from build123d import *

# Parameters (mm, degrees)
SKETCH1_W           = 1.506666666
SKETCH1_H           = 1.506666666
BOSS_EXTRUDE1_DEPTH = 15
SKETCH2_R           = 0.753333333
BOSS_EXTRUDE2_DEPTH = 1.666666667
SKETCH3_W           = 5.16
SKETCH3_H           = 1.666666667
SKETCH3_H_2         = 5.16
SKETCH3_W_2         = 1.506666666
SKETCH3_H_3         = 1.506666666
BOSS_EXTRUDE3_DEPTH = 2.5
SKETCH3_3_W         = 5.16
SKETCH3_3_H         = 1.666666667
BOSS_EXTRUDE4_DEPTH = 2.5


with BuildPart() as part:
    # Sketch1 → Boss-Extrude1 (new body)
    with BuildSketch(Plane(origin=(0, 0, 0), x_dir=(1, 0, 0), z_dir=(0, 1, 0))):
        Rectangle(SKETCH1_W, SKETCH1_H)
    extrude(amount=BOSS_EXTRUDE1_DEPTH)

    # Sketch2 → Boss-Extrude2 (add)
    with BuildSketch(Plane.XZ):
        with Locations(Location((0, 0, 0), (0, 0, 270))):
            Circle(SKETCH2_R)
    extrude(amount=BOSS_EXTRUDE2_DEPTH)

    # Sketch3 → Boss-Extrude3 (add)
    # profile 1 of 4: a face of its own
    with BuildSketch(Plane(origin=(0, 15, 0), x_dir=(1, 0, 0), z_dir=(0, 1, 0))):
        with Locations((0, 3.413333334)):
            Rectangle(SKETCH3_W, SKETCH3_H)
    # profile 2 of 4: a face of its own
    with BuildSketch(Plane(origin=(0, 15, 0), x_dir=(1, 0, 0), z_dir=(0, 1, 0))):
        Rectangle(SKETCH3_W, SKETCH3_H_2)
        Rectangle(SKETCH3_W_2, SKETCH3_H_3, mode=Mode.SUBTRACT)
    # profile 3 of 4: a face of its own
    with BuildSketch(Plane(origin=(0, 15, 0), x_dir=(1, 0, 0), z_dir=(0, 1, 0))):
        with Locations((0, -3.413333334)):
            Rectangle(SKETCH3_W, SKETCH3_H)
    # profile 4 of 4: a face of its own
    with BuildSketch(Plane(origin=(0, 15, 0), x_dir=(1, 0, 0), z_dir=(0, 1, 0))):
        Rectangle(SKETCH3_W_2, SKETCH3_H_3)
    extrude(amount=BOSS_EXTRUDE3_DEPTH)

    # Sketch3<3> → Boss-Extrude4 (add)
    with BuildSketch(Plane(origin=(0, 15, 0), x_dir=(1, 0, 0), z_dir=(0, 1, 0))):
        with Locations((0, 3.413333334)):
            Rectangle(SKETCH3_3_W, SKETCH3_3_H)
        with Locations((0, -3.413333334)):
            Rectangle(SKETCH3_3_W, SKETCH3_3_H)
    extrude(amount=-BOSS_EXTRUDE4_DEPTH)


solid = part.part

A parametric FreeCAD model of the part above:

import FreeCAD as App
import Part
import Sketcher

V = App.Vector
Q = App.Units.Quantity


def add_polygon(sketch, points):
    """Adds a closed chain of lines whose ends are joined by coincident constraints."""
    first, n = sketch.GeometryCount, len(points)
    for a, b in zip(points, points[1:] + points[:1]):
        sketch.addGeometry(Part.LineSegment(App.Vector(*a, 0), App.Vector(*b, 0)), False)
    for i in range(n):
        sketch.addConstraint(Sketcher.Constraint("Coincident", first + i, 2, first + (i + 1) % n, 1))

doc = App.newDocument("Part")
body = doc.addObject("PartDesign::Body", "Body")

# Sketch on XZ plane
sketch1 = body.newObject("Sketcher::SketchObject", "Sketch")
sketch1.AttachmentSupport = (doc.getObject("XZ_Plane"), [""])
sketch1.MapMode = "FlatFace"
add_polygon(sketch1, [(-0.753333, -0.753333), (-0.753333, 0.753333), (0.753333, 0.753333), (0.753333, -0.753333)])  # lines 0-3
sketch1.addConstraint([
    Sketcher.Constraint("Vertical", 0),
    Sketcher.Constraint("Horizontal", 1),
    Sketcher.Constraint("Vertical", 2),
    Sketcher.Constraint("Horizontal", 3),
    Sketcher.Constraint("Symmetric", 0, 2, 2, 2, -1, 1),
    Sketcher.Constraint("Equal", 3, 0),
    Sketcher.Constraint("DistanceX", 1, 1, 1, 2, Q("1.506667 mm")),
])
pad1 = body.newObject("PartDesign::Pad", "Pad")
pad1.Profile = sketch1
pad1.Length = 15
pad1.Reversed = True

# Sketch on XZ plane
sketch2 = body.newObject("Sketcher::SketchObject", "Sketch001")
sketch2.AttachmentSupport = (doc.getObject("XZ_Plane"), [""])
sketch2.MapMode = "FlatFace"
sketch2.addGeometry(Part.Circle(V(0, 0, 0), V(0, 0, 1), 0.753333), False)
sketch2.addConstraint([
    Sketcher.Constraint("Coincident", 0, 3, -1, 1),
    Sketcher.Constraint("Diameter", 0, Q("1.506667 mm")),
])
pad2 = body.newObject("PartDesign::Pad", "Pad001")
pad2.Profile = sketch2
pad2.Length = 1.666667

# Sketch on XZ plane
sketch3 = body.newObject("Sketcher::SketchObject", "Sketch002")
sketch3.AttachmentSupport = (doc.getObject("XZ_Plane"), [""])
sketch3.MapMode = "FlatFace"
sketch3.AttachmentOffset = App.Placement(V(0, 0, -15), App.Rotation())
add_polygon(sketch3, [(-2.58, -4.246667), (-2.58, 4.246667), (2.58, 4.246667), (2.58, -4.246667)])  # lines 0-3
sketch3.addConstraint([
    Sketcher.Constraint("Vertical", 0),
    Sketcher.Constraint("Horizontal", 1),
    Sketcher.Constraint("Vertical", 2),
    Sketcher.Constraint("Horizontal", 3),
    Sketcher.Constraint("Symmetric", 0, 2, 2, 2, -1, 1),
    Sketcher.Constraint("DistanceX", 1, 1, 1, 2, Q("5.16 mm")),
    Sketcher.Constraint("DistanceY", 0, 1, 0, 2, Q("8.493333 mm")),
])
pad3 = body.newObject("PartDesign::Pad", "Pad002")
pad3.Profile = sketch3
pad3.Length = 2.5
pad3.Reversed = True

# Sketch on XZ plane
sketch4 = body.newObject("Sketcher::SketchObject", "Sketch003")
sketch4.AttachmentSupport = (doc.getObject("XZ_Plane"), [""])
sketch4.MapMode = "FlatFace"
sketch4.AttachmentOffset = App.Placement(V(0, 0, -15), App.Rotation())
add_polygon(sketch4, [(-2.58, -4.246667), (-2.58, -2.58), (2.58, -2.58), (2.58, -4.246667)])  # lines 0-3
add_polygon(sketch4, [(-2.58, 2.58), (-2.58, 4.246667), (2.58, 4.246667), (2.58, 2.58)])  # lines 4-7
sketch4.addConstraint([
    Sketcher.Constraint("Vertical", 0),
    Sketcher.Constraint("Horizontal", 1),
    Sketcher.Constraint("Vertical", 2),
    Sketcher.Constraint("Horizontal", 3),
    Sketcher.Constraint("Vertical", 4),
    Sketcher.Constraint("Horizontal", 5),
    Sketcher.Constraint("Vertical", 6),
    Sketcher.Constraint("Horizontal", 7),
    Sketcher.Constraint("Symmetric", 2, 2, 4, 2, -1, 1),
    Sketcher.Constraint("Symmetric", 0, 2, 6, 2, -1, 1),
    Sketcher.Constraint("Vertical", 3, 2, 4, 2),
    Sketcher.Constraint("DistanceX", 1, 1, 1, 2, Q("5.16 mm")),
    Sketcher.Constraint("DistanceY", 0, 2, -1, 1, Q("2.58 mm")),
    Sketcher.Constraint("DistanceY", 0, 1, 0, 2, Q("1.666667 mm")),
])
pad4 = body.newObject("PartDesign::Pad", "Pad003")
pad4.Profile = sketch4
pad4.Length = 2.5

doc.recompute()
